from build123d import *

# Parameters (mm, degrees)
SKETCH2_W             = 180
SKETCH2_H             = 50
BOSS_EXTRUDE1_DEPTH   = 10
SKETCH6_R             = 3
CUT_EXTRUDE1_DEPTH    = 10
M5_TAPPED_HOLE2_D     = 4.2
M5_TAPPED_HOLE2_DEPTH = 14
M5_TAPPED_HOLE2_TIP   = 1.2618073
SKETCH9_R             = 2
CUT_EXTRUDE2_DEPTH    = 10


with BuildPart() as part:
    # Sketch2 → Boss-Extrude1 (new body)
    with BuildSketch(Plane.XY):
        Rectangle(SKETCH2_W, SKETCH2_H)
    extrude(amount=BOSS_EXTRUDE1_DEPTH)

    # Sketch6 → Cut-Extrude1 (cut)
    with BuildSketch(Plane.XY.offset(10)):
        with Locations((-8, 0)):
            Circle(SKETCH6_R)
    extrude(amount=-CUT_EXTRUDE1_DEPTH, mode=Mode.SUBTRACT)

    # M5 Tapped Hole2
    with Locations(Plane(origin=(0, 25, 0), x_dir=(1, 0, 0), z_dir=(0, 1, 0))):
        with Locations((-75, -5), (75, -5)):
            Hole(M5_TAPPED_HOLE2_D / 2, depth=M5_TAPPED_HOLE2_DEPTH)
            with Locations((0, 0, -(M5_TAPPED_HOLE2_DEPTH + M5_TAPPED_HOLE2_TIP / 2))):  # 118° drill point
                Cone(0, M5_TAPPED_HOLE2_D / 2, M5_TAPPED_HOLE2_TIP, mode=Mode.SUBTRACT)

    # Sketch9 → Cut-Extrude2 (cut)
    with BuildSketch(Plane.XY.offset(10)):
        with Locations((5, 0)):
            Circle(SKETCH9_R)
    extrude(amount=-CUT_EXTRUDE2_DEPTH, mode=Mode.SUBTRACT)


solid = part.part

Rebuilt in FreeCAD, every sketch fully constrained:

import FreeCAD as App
import Part
import Sketcher
Q = App.Units.Quantity

doc = App.newDocument("Part")
body = doc.addObject("PartDesign::Body", "Body")

sketch1 = body.newObject("Sketcher::SketchObject", "Sketch")
sketch1.AttachmentSupport = (doc.getObject("XY_Plane"), [""])
sketch1.MapMode = "FlatFace"
sketch1.addGeometry([
    Part.LineSegment(App.Vector(-90, 25, 0), App.Vector(-90, -25, 0)),
    Part.LineSegment(App.Vector(-90, -25, 0), App.Vector(90, -25, 0)),
    Part.LineSegment(App.Vector(90, -25, 0), App.Vector(90, 25, 0)),
    Part.LineSegment(App.Vector(90, 25, 0), App.Vector(-90, 25, 0)),
], False)
sketch1.addConstraint([
    Sketcher.Constraint("Coincident", 0, 2, 1, 1),
    Sketcher.Constraint("Coincident", 1, 2, 2, 1),
    Sketcher.Constraint("Coincident", 2, 2, 3, 1),
    Sketcher.Constraint("Coincident", 3, 2, 0, 1),
    Sketcher.Constraint("Vertical", 0),
    Sketcher.Constraint("Horizontal", 1),
    Sketcher.Constraint("Vertical", 2),
    Sketcher.Constraint("Horizontal", 3),
    Sketcher.Constraint("Symmetric", 0, 2, 2, 2, -1, 1),
    Sketcher.Constraint("DistanceX", 1, 1, 1, 2, Q("180 mm")),
    Sketcher.Constraint("DistanceY", 0, 2, 0, 1, Q("50 mm")),
])
pad1 = body.newObject("PartDesign::Pad", "Pad")
pad1.Profile = sketch1
pad1.Length = 10

sketch2 = body.newObject("Sketcher::SketchObject", "Sketch001")
sketch2.AttachmentSupport = (doc.getObject("XY_Plane"), [""])
sketch2.MapMode = "FlatFace"
sketch2.AttachmentOffset = App.Placement(App.Vector(0, 0, 10), App.Rotation())
sketch2.addGeometry(Part.Circle(App.Vector(-8, 0, 0), App.Vector(0, 0, 1), 3), False)
sketch2.addConstraint([
    Sketcher.Constraint("PointOnObject", 0, 3, -1),
    Sketcher.Constraint("Diameter", 0, Q("6 mm")),
    Sketcher.Constraint("DistanceX", 0, 3, -1, 1, Q("8 mm")),
])
pocket1 = body.newObject("PartDesign::Pocket", "Pocket")
pocket1.Profile = sketch2
pocket1.Length = 10

sketch3 = body.newObject("Sketcher::SketchObject", "Sketch002")
sketch3.AttachmentSupport = (doc.getObject("XZ_Plane"), [""])
sketch3.MapMode = "FlatFace"
sketch3.AttachmentOffset = App.Placement(App.Vector(0, 0, -25), App.Rotation())
sketch3.addGeometry([
    Part.Circle(App.Vector(-75, 5, 0), App.Vector(0, 0, 1), 2.1),
    Part.Circle(App.Vector(75, 5, 0), App.Vector(0, 0, 1), 2.1),
], False)
sketch3.addConstraint([
    Sketcher.Constraint("Equal", 0, 1),
    Sketcher.Constraint("Symmetric", 0, 3, 1, 3, -2),
    Sketcher.Constraint("Diameter", 0, Q("4.2 mm")),
    Sketcher.Constraint("DistanceX", 0, 3, -1, 1, Q("75 mm")),
    Sketcher.Constraint("DistanceY", -1, 1, 0, 3, Q("5 mm")),
])
doc.recompute()
hole = body.newObject("PartDesign::Hole", "Hole")
hole.Profile = sketch3
hole.ThreadType = "None"
hole.Diameter = 4.2
hole.DepthType = "Dimension"
hole.Depth = 14
hole.DrillPoint = "Angled"
hole.DrillPointAngle = 118
hole.Reversed = True

sketch4 = body.newObject("Sketcher::SketchObject", "Sketch003")
sketch4.AttachmentSupport = (doc.getObject("XY_Plane"), [""])
sketch4.MapMode = "FlatFace"
sketch4.AttachmentOffset = App.Placement(App.Vector(0, 0, 10), App.Rotation())
sketch4.addGeometry(Part.Circle(App.Vector(5, 0, 0), App.Vector(0, 0, 1), 2), False)
sketch4.addConstraint([
    Sketcher.Constraint("PointOnObject", 0, 3, -1),
    Sketcher.Constraint("Diameter", 0, Q("4 mm")),
    Sketcher.Constraint("DistanceX", -1, 1, 0, 3, Q("5 mm")),
])
pocket2 = body.newObject("PartDesign::Pocket", "Pocket001")
pocket2.Profile = sketch4
pocket2.Length = 10

doc.recompute()
